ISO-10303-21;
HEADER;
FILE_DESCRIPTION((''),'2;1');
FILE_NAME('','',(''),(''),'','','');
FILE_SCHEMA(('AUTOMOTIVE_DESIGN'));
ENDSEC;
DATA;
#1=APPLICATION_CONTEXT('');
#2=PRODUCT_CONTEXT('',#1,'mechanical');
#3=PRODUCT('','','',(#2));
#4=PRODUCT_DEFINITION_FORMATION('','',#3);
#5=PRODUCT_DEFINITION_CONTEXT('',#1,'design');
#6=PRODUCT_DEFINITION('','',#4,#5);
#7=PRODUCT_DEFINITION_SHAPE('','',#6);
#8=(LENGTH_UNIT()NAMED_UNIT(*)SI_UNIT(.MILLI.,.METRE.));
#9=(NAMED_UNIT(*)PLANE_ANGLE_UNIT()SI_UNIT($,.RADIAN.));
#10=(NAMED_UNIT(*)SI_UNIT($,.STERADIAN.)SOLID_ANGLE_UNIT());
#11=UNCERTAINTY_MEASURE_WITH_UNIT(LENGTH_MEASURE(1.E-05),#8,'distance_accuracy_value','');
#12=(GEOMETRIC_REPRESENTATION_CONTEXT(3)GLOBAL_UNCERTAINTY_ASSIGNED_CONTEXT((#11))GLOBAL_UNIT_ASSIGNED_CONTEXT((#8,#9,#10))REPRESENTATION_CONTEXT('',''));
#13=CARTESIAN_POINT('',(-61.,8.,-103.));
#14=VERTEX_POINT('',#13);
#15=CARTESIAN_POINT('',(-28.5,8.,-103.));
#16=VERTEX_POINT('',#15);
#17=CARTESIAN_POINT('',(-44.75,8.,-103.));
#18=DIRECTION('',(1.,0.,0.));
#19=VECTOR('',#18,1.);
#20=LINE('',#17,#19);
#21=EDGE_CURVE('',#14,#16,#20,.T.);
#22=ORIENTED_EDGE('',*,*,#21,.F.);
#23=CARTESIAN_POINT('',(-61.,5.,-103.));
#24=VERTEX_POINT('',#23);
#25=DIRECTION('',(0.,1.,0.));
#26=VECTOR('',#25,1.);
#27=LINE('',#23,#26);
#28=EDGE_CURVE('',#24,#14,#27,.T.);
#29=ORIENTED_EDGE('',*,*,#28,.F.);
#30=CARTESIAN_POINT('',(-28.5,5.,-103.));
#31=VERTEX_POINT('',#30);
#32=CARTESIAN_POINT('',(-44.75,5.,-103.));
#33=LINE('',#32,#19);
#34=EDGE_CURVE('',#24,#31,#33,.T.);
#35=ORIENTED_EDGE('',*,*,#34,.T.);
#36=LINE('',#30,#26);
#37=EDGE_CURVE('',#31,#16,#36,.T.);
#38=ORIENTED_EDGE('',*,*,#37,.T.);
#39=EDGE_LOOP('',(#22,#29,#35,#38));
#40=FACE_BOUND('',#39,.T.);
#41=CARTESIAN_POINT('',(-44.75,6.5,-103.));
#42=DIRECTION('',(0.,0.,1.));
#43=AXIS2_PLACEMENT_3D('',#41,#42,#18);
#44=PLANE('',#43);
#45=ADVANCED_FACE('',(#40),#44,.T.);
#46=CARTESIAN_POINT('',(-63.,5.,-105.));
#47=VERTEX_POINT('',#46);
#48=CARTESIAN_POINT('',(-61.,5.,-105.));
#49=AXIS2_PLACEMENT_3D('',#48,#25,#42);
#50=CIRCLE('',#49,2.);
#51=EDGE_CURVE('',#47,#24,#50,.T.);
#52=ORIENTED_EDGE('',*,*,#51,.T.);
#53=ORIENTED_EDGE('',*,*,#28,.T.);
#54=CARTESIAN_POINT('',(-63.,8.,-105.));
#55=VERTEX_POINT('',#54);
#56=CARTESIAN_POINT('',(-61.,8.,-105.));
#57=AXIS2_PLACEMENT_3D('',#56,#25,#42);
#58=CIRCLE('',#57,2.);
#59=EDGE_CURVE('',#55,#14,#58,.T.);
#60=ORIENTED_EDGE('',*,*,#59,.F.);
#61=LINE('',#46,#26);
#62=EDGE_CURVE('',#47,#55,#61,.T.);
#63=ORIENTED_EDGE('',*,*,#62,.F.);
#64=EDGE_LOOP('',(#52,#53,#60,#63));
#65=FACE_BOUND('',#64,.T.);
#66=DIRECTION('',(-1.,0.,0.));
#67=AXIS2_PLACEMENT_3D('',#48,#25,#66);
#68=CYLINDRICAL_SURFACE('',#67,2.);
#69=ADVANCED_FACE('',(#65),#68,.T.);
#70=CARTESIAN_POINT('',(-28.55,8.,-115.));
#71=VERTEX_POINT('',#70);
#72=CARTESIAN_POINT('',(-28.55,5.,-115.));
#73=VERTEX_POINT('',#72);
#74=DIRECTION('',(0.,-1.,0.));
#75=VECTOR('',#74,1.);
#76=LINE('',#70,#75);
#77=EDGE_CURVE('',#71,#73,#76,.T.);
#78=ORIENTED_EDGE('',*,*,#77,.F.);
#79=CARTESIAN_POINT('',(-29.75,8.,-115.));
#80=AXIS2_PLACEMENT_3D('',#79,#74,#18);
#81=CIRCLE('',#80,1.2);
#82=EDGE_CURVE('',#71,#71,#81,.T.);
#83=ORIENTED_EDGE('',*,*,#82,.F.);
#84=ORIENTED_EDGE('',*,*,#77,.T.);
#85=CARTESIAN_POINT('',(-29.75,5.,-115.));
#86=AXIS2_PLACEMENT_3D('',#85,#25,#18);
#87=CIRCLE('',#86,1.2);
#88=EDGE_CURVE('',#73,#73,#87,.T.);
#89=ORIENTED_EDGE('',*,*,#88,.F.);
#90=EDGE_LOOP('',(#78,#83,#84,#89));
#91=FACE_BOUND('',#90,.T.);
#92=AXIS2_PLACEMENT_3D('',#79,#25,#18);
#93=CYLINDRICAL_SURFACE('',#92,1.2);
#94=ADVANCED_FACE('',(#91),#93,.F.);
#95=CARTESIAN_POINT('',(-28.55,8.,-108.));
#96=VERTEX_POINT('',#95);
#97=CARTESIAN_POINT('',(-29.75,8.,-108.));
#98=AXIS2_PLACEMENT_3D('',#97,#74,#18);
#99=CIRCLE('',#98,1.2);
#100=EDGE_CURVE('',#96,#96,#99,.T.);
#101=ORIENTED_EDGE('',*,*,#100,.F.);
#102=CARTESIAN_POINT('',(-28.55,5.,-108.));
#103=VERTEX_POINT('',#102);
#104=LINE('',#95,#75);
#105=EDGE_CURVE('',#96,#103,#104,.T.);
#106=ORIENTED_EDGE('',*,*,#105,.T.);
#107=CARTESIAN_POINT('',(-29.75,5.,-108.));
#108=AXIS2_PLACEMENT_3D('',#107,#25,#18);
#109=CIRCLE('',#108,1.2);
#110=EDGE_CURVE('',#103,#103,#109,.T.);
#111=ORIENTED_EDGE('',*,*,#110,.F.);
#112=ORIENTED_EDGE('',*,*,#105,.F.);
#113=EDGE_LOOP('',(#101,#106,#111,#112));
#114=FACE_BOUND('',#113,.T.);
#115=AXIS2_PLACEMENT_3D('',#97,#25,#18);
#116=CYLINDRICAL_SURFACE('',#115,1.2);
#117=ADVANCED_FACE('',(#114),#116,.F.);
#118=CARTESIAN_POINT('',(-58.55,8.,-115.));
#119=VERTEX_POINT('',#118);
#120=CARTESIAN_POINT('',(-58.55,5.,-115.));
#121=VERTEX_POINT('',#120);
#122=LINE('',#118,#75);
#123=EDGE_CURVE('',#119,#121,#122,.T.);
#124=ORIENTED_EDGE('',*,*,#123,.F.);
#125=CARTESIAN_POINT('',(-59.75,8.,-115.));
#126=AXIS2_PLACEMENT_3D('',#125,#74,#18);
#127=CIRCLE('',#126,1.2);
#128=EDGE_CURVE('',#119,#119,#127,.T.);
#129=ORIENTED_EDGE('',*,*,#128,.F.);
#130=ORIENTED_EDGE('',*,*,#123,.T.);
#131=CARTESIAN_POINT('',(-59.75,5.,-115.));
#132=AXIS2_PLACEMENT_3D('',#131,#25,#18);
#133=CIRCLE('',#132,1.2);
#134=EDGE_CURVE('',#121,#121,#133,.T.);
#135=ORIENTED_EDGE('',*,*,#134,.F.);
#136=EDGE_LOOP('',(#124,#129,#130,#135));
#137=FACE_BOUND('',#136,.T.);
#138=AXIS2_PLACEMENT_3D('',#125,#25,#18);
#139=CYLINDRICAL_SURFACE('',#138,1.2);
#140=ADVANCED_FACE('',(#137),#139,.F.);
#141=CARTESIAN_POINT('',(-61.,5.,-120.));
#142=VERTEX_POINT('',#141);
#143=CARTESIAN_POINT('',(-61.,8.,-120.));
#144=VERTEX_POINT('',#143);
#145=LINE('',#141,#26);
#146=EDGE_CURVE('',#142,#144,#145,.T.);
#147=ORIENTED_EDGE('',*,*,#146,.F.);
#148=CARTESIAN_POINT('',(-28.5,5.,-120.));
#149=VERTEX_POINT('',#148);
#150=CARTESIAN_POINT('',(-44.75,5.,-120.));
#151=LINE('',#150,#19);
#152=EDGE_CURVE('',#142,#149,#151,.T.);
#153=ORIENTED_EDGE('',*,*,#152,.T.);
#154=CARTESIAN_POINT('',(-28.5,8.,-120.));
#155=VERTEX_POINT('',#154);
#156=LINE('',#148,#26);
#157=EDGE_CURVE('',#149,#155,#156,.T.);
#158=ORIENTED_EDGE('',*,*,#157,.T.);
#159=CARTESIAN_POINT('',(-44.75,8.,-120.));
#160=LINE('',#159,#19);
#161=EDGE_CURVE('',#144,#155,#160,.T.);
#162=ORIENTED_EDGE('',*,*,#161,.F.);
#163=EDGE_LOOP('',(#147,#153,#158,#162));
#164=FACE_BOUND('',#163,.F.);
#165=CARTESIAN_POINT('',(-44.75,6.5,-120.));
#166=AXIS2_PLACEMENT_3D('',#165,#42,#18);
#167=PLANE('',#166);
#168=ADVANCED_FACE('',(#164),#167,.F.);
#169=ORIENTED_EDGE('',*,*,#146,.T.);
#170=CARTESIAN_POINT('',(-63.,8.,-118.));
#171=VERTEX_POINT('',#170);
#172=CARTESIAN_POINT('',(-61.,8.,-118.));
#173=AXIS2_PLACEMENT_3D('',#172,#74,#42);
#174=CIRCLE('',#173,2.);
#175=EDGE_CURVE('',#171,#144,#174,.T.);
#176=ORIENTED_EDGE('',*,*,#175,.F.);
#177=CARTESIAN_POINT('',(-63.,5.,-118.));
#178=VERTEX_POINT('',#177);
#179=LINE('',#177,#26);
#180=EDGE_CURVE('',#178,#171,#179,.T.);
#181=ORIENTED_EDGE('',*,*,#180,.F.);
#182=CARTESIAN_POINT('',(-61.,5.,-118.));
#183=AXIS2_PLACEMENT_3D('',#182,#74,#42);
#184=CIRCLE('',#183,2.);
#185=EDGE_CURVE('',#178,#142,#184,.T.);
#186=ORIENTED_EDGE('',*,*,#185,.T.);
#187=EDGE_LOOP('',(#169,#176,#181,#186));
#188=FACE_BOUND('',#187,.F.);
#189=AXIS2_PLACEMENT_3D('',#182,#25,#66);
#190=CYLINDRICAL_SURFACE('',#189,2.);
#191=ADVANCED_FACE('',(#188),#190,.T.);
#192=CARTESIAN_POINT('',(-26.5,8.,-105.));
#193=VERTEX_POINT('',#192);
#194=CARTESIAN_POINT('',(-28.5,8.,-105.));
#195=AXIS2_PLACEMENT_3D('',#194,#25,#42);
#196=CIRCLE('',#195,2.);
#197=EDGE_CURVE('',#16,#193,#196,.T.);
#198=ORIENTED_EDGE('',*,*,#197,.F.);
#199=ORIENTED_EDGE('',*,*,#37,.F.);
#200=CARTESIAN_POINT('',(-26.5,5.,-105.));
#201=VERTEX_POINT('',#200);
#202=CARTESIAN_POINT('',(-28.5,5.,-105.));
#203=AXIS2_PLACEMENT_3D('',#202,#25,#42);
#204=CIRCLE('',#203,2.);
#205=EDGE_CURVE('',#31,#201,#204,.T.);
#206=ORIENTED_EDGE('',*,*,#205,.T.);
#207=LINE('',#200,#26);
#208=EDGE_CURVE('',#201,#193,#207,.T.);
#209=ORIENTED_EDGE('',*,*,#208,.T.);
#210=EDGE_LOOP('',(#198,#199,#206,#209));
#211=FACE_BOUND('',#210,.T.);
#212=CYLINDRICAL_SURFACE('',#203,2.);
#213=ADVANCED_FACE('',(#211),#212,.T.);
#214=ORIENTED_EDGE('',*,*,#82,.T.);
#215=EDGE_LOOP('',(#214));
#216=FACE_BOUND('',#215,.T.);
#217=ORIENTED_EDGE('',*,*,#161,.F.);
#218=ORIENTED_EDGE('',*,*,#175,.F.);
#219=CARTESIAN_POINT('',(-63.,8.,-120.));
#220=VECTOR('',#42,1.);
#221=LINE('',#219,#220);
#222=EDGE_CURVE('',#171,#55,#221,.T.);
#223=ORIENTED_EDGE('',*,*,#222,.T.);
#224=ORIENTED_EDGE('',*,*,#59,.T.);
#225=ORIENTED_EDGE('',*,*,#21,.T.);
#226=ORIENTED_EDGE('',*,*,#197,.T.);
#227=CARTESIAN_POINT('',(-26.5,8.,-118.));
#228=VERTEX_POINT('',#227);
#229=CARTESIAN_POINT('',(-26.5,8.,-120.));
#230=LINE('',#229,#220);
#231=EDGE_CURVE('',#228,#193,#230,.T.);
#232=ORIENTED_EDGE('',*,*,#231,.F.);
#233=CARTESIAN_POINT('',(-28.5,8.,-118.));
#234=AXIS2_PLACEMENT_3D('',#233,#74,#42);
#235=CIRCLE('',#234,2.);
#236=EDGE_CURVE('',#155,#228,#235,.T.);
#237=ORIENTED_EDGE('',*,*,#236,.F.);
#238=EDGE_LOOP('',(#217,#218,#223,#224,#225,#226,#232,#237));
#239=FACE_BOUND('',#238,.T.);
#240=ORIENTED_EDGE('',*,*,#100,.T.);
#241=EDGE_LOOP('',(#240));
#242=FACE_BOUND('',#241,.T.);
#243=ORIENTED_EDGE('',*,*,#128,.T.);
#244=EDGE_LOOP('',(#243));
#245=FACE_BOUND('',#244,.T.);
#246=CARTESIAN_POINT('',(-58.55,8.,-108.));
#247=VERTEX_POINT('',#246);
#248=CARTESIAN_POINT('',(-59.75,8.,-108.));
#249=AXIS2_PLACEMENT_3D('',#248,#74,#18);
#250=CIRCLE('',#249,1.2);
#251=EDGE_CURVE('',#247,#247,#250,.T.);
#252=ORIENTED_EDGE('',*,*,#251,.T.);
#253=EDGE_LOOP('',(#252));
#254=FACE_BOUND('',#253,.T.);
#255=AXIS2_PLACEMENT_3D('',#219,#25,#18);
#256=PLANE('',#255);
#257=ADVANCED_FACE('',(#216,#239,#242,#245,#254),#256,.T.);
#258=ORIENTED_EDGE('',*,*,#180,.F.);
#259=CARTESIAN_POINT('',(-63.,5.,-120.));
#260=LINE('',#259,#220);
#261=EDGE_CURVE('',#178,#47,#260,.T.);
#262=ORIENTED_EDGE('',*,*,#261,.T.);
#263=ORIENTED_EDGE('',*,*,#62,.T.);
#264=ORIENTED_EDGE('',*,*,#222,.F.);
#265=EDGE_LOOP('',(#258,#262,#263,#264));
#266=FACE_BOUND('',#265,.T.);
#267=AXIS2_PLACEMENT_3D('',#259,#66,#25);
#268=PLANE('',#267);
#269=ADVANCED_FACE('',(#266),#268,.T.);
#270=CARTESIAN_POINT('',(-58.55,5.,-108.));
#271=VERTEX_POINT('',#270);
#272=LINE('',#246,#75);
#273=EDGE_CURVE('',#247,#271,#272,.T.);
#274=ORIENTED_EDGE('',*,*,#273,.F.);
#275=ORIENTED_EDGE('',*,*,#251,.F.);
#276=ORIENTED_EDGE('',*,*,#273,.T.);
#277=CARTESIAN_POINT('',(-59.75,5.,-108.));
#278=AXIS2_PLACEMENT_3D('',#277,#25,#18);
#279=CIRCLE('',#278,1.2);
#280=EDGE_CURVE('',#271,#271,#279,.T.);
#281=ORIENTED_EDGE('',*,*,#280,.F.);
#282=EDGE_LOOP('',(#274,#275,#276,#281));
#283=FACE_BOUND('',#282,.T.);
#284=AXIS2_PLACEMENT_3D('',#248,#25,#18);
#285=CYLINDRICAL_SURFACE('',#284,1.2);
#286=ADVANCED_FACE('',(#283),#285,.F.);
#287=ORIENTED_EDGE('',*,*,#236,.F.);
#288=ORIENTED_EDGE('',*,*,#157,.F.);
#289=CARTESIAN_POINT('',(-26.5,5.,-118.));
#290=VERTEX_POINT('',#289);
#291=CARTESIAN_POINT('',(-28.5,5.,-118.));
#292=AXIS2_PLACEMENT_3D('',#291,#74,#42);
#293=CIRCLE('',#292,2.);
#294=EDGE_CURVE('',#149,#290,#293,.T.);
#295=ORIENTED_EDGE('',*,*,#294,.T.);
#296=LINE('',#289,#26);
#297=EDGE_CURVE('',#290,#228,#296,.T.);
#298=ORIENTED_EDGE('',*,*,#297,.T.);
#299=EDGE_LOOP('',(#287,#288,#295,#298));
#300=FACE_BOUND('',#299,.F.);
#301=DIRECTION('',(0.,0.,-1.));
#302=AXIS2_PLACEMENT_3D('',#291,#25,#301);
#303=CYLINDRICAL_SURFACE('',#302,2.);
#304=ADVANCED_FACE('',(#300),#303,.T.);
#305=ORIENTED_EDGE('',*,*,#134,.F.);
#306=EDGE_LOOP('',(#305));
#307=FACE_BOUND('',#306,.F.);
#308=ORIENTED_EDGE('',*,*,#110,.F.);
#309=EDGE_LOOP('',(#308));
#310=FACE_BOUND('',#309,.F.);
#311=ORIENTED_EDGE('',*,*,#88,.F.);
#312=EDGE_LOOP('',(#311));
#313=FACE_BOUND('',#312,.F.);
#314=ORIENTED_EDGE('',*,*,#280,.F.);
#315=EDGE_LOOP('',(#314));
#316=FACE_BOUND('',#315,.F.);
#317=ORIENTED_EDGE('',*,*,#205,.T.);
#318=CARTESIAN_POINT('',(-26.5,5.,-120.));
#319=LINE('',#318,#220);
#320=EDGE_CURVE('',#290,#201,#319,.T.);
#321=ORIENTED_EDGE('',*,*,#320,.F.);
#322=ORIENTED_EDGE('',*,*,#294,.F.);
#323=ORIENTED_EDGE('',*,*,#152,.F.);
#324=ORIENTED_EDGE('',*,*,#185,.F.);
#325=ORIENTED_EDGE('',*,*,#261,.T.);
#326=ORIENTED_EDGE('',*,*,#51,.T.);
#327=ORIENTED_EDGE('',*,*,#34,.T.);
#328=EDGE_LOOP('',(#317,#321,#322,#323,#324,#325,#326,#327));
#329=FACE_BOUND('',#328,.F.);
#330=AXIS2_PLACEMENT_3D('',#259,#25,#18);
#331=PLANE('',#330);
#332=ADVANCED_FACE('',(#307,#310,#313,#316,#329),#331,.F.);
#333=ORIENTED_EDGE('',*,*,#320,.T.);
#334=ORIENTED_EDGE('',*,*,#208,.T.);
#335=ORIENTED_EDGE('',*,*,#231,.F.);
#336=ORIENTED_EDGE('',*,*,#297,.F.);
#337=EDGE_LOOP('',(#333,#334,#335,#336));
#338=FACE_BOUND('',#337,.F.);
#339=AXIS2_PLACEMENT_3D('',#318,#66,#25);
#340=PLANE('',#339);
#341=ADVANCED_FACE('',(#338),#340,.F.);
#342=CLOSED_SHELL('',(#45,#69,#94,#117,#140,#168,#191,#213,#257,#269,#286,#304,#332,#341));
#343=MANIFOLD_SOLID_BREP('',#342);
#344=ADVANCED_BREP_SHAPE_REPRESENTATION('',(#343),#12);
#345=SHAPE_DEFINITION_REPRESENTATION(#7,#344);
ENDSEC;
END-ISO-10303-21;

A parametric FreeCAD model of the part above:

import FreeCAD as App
import Part
import Sketcher

V = App.Vector


def edges_at(feature, points):
    """Names of the edges that pass closest to the given points."""
    edges = feature.Shape.Edges
    near = lambda p: min(range(len(edges)), key=lambda i: edges[i].distToShape(Part.Vertex(*p))[0])
    return sorted({f"Edge{near(p) + 1}" for p in points})


def add_polygon(sketch, points):
    """Adds a closed chain of lines whose ends are joined by coincident constraints."""
    first, n = sketch.GeometryCount, len(points)
    for a, b in zip(points, points[1:] + points[:1]):
        sketch.addGeometry(Part.LineSegment(App.Vector(*a, 0), App.Vector(*b, 0)), False)
    for i in range(n):
        sketch.addConstraint(Sketcher.Constraint("Coincident", first + i, 2, first + (i + 1) % n, 1))

doc = App.newDocument("Part")
body = doc.addObject("PartDesign::Body", "Body")

sketch1 = doc.addObject("Sketcher::SketchObject", "Sketch")
body.addObject(sketch1)
sketch1.AttachmentSupport = (doc.XZ_Plane, [""])
sketch1.MapMode = "FlatFace"
sketch1.addGeometry(Part.Circle(V(0, 0, 0), V(0, 0, 1), 1.2), False)
sketch1.addConstraint([
    Sketcher.Constraint("Coincident", 0, 3, -1, 1),
    Sketcher.Constraint("Diameter", 0, 2.4),
])
pad1 = doc.addObject("PartDesign::Pad", "Pad")
body.addObject(pad1)
pad1.Profile = sketch1
pad1.Length = 10
body2 = doc.addObject("PartDesign::Body", "Body001")
body2.AllowCompound = True

sketch2 = doc.addObject("Sketcher::SketchObject", "Sketch001")
body2.addObject(sketch2)
sketch2.AttachmentSupport = (doc.getObject("XZ_Plane001"), [""])
sketch2.MapMode = "FlatFace"
sketch2.addGeometry(Part.Circle(V(30, 0, 0), V(0, 0, 1), 1.2), False)
sketch2.addConstraint([
    Sketcher.Constraint("PointOnObject", 0, 3, -1),
    Sketcher.Constraint("Diameter", 0, 2.4),
    Sketcher.Constraint("DistanceX", -1, 1, 0, 3, 30.0),
])
pad2 = doc.addObject("PartDesign::Pad", "Pad001")
body2.addObject(pad2)
pad2.Profile = sketch2
pad2.Length = 10
doc.recompute()

boolean = doc.addObject("PartDesign::Boolean", "Boolean")
body2.addObject(boolean)
boolean.Type = "Fuse"
boolean.addObjects([body])
body3 = doc.addObject("PartDesign::Body", "Body002")
body3.AllowCompound = True
doc.recompute()

body2.Placement = App.Placement(V(3.25, 0, 7), App.Rotation(V(0, 0, 1), 0))
boolean2 = doc.addObject("PartDesign::Boolean", "Boolean001")
body3.addObject(boolean2)
boolean2.Type = "Fuse"
boolean2.addObjects([body2])
body4 = doc.addObject("PartDesign::Body", "Body003")

sketch3 = doc.addObject("Sketcher::SketchObject", "Sketch002")
body4.addObject(sketch3)
sketch3.AttachmentSupport = (doc.getObject("XZ_Plane003"), [""])
sketch3.MapMode = "FlatFace"
sketch3.addGeometry(Part.Circle(V(0, 0, 0), V(0, 0, 1), 1.2), False)
sketch3.addConstraint([
    Sketcher.Constraint("Coincident", 0, 3, -1, 1),
    Sketcher.Constraint("Diameter", 0, 2.4),
])
pad3 = doc.addObject("PartDesign::Pad", "Pad002")
body4.addObject(pad3)
pad3.Profile = sketch3
pad3.Length = 10
body5 = doc.addObject("PartDesign::Body", "Body004")
body5.AllowCompound = True

sketch4 = doc.addObject("Sketcher::SketchObject", "Sketch003")
body5.addObject(sketch4)
sketch4.AttachmentSupport = (doc.getObject("XZ_Plane004"), [""])
sketch4.MapMode = "FlatFace"
sketch4.addGeometry(Part.Circle(V(30, 0, 0), V(0, 0, 1), 1.2), False)
sketch4.addConstraint([
    Sketcher.Constraint("PointOnObject", 0, 3, -1),
    Sketcher.Constraint("Diameter", 0, 2.4),
    Sketcher.Constraint("DistanceX", -1, 1, 0, 3, 30.0),
])
pad4 = doc.addObject("PartDesign::Pad", "Pad003")
body5.addObject(pad4)
pad4.Profile = sketch4
pad4.Length = 10
doc.recompute()

boolean3 = doc.addObject("PartDesign::Boolean", "Boolean002")
body5.addObject(boolean3)
boolean3.Type = "Fuse"
boolean3.addObjects([body4])
body6 = doc.addObject("PartDesign::Body", "Body005")
body6.AllowCompound = True
doc.recompute()

body5.Placement = App.Placement(V(3.25, 0, 0), App.Rotation(V(0, 0, 1), 0))
boolean4 = doc.addObject("PartDesign::Boolean", "Boolean003")
body6.addObject(boolean4)
boolean4.Type = "Fuse"
boolean4.addObjects([body5])
doc.recompute()

boolean5 = doc.addObject("PartDesign::Boolean", "Boolean004")
body6.addObject(boolean5)
boolean5.Type = "Fuse"
boolean5.addObjects([body3])
body7 = doc.addObject("PartDesign::Body", "Body006")
body7.AllowCompound = True
doc.recompute()

body6.Placement = App.Placement(V(0, 3, 5), App.Rotation(V(0, 0, 1), 0))
boolean6 = doc.addObject("PartDesign::Boolean", "Boolean005")
body7.addObject(boolean6)
boolean6.Type = "Fuse"
boolean6.addObjects([body6])
body8 = doc.addObject("PartDesign::Body", "Body007")

sketch5 = doc.addObject("Sketcher::SketchObject", "Sketch004")
body8.addObject(sketch5)
sketch5.AttachmentSupport = (doc.getObject("XY_Plane007"), [""])
sketch5.MapMode = "FlatFace"
add_polygon(sketch5, [(0, 3), (0, 0), (36.5, 0), (36.5, 3)])
sketch5.addConstraint([
    Sketcher.Constraint("Vertical", 0),
    Sketcher.Constraint("Horizontal", 1),
    Sketcher.Constraint("Vertical", 2),
    Sketcher.Constraint("Horizontal", 3),
    Sketcher.Constraint("Coincident", 0, 2, -1, 1),
    Sketcher.Constraint("DistanceY", 0, 2, 0, 1, 3.0),
    Sketcher.Constraint("DistanceX", 1, 1, 1, 2, 36.5),
])
pad5 = doc.addObject("PartDesign::Pad", "Pad004")
body8.addObject(pad5)
pad5.Profile = sketch5
pad5.Length = 17
doc.recompute()

boolean7 = doc.addObject("PartDesign::Boolean", "Boolean006")
body8.addObject(boolean7)
boolean7.Type = "Cut"
boolean7.addObjects([body7])
doc.recompute()

fillet = doc.addObject("PartDesign::Fillet", "Fillet")
body8.addObject(fillet)
fillet.Base = (boolean7, edges_at(boolean7, [
    (0, 1.5, 17),
    (0, 1.5, 0),
    (36.5, 1.5, 17),
    (36.5, 1.5, 0),
]))
fillet.Radius = 2
body9 = doc.addObject("PartDesign::Body", "Body008")
doc.recompute()

body8.Placement = App.Placement(V(-63, 5, -120), App.Rotation(V(0, 0, 1), 0))
boolean8 = doc.addObject("PartDesign::Boolean", "Boolean007")
body9.addObject(boolean8)
boolean8.Type = "Fuse"
boolean8.addObjects([body8])

doc.recompute()
